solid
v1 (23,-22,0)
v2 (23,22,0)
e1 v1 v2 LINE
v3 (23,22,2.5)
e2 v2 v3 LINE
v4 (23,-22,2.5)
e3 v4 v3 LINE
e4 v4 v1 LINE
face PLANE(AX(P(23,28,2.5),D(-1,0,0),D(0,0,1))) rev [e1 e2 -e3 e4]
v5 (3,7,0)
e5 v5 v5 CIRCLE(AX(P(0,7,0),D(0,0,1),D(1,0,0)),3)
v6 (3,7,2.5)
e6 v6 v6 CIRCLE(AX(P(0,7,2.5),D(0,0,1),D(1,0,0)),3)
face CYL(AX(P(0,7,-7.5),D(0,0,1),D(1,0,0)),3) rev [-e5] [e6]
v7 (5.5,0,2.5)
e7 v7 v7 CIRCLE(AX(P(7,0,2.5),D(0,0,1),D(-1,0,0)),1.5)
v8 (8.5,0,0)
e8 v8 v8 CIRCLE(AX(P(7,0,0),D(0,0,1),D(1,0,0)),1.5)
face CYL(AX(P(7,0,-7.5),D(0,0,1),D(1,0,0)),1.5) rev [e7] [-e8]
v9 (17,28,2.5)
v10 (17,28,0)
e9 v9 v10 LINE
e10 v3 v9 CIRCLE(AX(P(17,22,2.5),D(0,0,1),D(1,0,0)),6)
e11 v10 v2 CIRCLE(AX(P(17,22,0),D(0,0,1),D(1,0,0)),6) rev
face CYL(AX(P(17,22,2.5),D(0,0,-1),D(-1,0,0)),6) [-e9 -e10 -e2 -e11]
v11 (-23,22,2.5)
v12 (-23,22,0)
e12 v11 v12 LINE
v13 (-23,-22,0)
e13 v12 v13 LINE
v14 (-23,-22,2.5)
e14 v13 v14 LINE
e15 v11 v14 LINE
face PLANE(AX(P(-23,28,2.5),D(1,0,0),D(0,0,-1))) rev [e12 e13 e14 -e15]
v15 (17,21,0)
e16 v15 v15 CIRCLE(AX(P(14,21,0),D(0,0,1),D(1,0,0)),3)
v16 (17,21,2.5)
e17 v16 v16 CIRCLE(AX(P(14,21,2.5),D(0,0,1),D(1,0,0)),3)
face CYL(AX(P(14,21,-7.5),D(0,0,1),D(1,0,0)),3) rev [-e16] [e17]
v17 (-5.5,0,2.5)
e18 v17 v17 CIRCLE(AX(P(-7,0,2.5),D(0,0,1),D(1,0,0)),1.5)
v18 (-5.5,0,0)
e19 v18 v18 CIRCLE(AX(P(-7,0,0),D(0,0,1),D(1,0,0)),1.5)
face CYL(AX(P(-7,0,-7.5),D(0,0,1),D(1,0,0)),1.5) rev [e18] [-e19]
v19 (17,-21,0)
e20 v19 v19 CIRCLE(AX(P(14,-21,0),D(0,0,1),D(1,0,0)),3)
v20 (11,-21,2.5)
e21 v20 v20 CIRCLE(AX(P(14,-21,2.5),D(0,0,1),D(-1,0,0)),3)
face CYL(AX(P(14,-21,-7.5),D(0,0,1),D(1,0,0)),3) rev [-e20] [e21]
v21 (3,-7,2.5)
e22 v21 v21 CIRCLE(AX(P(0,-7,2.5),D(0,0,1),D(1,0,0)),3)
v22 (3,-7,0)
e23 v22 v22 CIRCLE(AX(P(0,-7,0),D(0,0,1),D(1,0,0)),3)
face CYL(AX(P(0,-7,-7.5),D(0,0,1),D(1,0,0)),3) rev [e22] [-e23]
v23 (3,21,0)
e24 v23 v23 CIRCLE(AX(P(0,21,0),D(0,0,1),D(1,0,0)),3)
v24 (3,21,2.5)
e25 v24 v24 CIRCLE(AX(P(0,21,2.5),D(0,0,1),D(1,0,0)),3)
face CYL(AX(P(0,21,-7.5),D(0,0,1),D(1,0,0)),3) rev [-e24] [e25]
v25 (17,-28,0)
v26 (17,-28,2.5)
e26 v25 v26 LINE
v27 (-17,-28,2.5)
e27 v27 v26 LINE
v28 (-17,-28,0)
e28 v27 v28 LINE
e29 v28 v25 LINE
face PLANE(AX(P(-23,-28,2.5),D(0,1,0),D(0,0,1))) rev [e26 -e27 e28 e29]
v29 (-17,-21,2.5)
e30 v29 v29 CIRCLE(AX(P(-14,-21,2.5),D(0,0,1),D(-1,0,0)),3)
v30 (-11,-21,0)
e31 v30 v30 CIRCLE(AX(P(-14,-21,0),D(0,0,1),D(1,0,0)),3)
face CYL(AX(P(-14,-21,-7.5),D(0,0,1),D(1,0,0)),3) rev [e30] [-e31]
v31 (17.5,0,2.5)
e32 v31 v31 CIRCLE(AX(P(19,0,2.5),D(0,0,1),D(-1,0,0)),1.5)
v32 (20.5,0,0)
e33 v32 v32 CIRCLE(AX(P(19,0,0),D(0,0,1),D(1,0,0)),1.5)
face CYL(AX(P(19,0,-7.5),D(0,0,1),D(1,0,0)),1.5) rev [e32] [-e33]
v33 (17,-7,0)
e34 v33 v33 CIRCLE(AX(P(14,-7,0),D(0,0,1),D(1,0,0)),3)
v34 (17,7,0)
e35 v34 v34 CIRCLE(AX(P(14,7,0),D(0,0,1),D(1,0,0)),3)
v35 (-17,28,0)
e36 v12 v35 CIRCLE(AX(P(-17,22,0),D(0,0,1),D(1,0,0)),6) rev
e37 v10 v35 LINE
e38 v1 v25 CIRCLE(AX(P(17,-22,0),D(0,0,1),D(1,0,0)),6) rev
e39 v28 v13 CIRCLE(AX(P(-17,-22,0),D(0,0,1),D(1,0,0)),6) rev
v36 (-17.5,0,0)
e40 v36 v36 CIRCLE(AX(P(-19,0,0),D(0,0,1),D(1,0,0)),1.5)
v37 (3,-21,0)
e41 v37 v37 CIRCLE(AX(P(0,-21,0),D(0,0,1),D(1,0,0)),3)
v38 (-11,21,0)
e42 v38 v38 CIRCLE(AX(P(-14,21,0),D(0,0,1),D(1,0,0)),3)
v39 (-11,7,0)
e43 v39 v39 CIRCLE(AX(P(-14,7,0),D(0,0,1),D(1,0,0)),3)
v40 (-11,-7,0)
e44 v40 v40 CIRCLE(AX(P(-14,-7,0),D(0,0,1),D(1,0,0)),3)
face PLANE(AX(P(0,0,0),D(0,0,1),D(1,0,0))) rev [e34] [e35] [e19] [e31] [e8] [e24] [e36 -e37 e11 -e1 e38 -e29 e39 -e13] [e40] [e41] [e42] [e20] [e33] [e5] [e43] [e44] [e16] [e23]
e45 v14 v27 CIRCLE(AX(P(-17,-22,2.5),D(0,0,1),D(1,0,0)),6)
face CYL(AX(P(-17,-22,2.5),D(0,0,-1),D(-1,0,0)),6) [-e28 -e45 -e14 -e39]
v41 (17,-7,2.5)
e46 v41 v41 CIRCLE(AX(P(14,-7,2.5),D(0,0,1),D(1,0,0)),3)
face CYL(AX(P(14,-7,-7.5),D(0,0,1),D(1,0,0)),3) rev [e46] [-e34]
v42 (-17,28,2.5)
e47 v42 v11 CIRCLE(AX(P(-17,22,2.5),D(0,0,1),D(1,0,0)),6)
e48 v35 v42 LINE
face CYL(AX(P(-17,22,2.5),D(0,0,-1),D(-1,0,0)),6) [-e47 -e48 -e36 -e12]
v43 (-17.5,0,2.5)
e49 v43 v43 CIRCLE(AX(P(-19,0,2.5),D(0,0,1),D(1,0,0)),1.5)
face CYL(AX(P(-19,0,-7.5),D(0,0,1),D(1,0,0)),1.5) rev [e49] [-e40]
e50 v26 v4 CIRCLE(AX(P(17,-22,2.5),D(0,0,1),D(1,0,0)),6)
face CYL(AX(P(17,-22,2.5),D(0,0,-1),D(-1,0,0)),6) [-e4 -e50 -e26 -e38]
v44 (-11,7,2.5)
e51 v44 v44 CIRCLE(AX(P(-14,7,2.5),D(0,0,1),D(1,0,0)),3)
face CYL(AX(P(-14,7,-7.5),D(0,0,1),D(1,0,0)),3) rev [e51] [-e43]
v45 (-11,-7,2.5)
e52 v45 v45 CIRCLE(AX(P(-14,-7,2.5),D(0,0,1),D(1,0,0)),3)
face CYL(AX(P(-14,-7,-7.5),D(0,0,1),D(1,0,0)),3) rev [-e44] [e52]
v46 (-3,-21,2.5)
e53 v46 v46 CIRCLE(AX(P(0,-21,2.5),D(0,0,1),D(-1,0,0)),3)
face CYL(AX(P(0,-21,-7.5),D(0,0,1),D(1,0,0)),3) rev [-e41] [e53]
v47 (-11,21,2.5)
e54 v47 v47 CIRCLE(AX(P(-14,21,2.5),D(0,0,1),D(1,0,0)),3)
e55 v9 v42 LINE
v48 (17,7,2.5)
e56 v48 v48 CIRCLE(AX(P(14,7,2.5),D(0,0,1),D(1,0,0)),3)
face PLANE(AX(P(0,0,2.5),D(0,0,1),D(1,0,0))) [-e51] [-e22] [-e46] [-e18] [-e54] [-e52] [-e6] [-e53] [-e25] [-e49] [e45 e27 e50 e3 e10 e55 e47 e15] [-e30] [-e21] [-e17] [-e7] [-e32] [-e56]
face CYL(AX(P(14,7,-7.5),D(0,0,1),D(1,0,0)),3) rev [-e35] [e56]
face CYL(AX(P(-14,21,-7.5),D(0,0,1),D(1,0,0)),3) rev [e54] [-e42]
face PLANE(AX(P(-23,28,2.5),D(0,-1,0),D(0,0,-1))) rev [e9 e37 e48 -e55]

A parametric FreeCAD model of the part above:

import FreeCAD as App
import Part
import Sketcher
Q = App.Units.Quantity


def edges_at(feature, points):
    """Names of the edges that pass closest to the given points."""
    edges = feature.Shape.Edges
    near = lambda p: min(range(len(edges)), key=lambda i: edges[i].distToShape(Part.Vertex(*p))[0])
    return sorted({f"Edge{near(p) + 1}" for p in points})


def add_polygon(sketch, points):
    """Adds a closed chain of lines whose ends are joined by coincident constraints."""
    first, n = sketch.GeometryCount, len(points)
    for a, b in zip(points, points[1:] + points[:1]):
        sketch.addGeometry(Part.LineSegment(App.Vector(*a, 0), App.Vector(*b, 0)), False)
    for i in range(n):
        sketch.addConstraint(Sketcher.Constraint("Coincident", first + i, 2, first + (i + 1) % n, 1))

doc = App.newDocument("Part")
body = doc.addObject("PartDesign::Body", "Body")

# Sketch on XY plane
sketch1 = body.newObject("Sketcher::SketchObject", "Sketch")
sketch1.AttachmentSupport = (doc.getObject("XY_Plane"), [""])
sketch1.MapMode = "FlatFace"
add_polygon(sketch1, [(-23, 28), (-23, -28), (23, -28), (23, 28)])  # lines 0-3
sketch1.addConstraint([
    Sketcher.Constraint("Vertical", 0),
    Sketcher.Constraint("Horizontal", 1),
    Sketcher.Constraint("Vertical", 2),
    Sketcher.Constraint("Horizontal", 3),
    Sketcher.Constraint("Symmetric", 0, 2, 2, 2, -1, 1),
    Sketcher.Constraint("DistanceX", 1, 1, 1, 2, Q("46 mm")),
    Sketcher.Constraint("DistanceY", 0, 2, 0, 1, Q("56 mm")),
])
pad1 = body.newObject("PartDesign::Pad", "Pad")
pad1.Profile = sketch1
pad1.Length = 2.5
doc.recompute()

fillet = body.newObject("PartDesign::Fillet", "Fillet")
fillet.Base = (pad1, edges_at(pad1, [
    (23, -28, 1.25),
    (-23, -28, 1.25),
    (-23, 28, 1.25),
    (23, 28, 1.25),
]))
fillet.Radius = 6

# Sketch on XY plane
sketch2 = body.newObject("Sketcher::SketchObject", "Sketch001")
sketch2.AttachmentSupport = (doc.getObject("XY_Plane"), [""])
sketch2.MapMode = "FlatFace"
sketch2.AttachmentOffset = App.Placement(App.Vector(0, 0, 2.5), App.Rotation())
sketch2.addGeometry([
    Part.Circle(App.Vector(-19, 0, 0), App.Vector(0, 0, 1), 1.5),
    Part.Circle(App.Vector(-7, 0, 0), App.Vector(0, 0, 1), 1.5),
    Part.Circle(App.Vector(7, 0, 0), App.Vector(0, 0, 1), 1.5),
    Part.Circle(App.Vector(19, 0, 0), App.Vector(0, 0, 1), 1.5),
], False)
sketch2.addConstraint([
    Sketcher.Constraint("Equal", 0, 1),
    Sketcher.Constraint("Equal", 1, 2),
    Sketcher.Constraint("Equal", 2, 3),
    Sketcher.Constraint("Symmetric", 1, 3, 2, 3, -1, 1),
    Sketcher.Constraint("Symmetric", 0, 3, 3, 3, -1, 1),
    Sketcher.Constraint("PointOnObject", 0, 3, -1),
    Sketcher.Constraint("PointOnObject", 1, 3, -1),
    Sketcher.Constraint("Diameter", 0, Q("3 mm")),
    Sketcher.Constraint("DistanceX", 0, 3, -1, 1, Q("19 mm")),
    Sketcher.Constraint("DistanceX", 1, 3, -1, 1, Q("7 mm")),
])
pocket1 = body.newObject("PartDesign::Pocket", "Pocket")
pocket1.Profile = sketch2
pocket1.Length = 10

# Sketch on XY plane
sketch3 = body.newObject("Sketcher::SketchObject", "Sketch002")
sketch3.AttachmentSupport = (doc.getObject("XY_Plane"), [""])
sketch3.MapMode = "FlatFace"
sketch3.AttachmentOffset = App.Placement(App.Vector(0, 0, 2.5), App.Rotation())
sketch3.addGeometry([
    Part.Circle(App.Vector(-14, 7, 0), App.Vector(0, 0, 1), 3),  # 0
    Part.Circle(App.Vector(0, 7, 0), App.Vector(0, 0, 1), 3),  # 1
    Part.Circle(App.Vector(14, 7, 0), App.Vector(0, 0, 1), 3),  # 2
    Part.Circle(App.Vector(-14, -7, 0), App.Vector(0, 0, 1), 3),  # 3
    Part.Circle(App.Vector(0, -7, 0), App.Vector(0, 0, 1), 3),  # 4
    Part.Circle(App.Vector(14, -7, 0), App.Vector(0, 0, 1), 3),  # 5
    Part.Circle(App.Vector(-14, 21, 0), App.Vector(0, 0, 1), 3),  # 6
    Part.Circle(App.Vector(0, 21, 0), App.Vector(0, 0, 1), 3),  # 7
    Part.Circle(App.Vector(14, 21, 0), App.Vector(0, 0, 1), 3),  # 8
    Part.Circle(App.Vector(14, -21, 0), App.Vector(0, 0, 1), 3),  # 9
    Part.Circle(App.Vector(0, -21, 0), App.Vector(0, 0, 1), 3),  # 10
    Part.Circle(App.Vector(-14, -21, 0), App.Vector(0, 0, 1), 3),  # 11
], False)
sketch3.addConstraint([
    Sketcher.Constraint("Equal", 0, 1),
    Sketcher.Constraint("Equal", 1, 2),
    Sketcher.Constraint("Equal", 2, 3),
    Sketcher.Constraint("Equal", 3, 4),
    Sketcher.Constraint("Equal", 4, 5),
    Sketcher.Constraint("Equal", 5, 6),
    Sketcher.Constraint("Equal", 6, 7),
    Sketcher.Constraint("Equal", 7, 8),
    Sketcher.Constraint("Equal", 8, 9),
    Sketcher.Constraint("Equal", 9, 10),
    Sketcher.Constraint("Equal", 10, 11),
    Sketcher.Constraint("Symmetric", 2, 3, 3, 3, -1, 1),
    Sketcher.Constraint("Symmetric", 1, 3, 4, 3, -1, 1),
    Sketcher.Constraint("Symmetric", 0, 3, 5, 3, -1, 1),
    Sketcher.Constraint("Symmetric", 6, 3, 9, 3, -1, 1),
    Sketcher.Constraint("Symmetric", 7, 3, 10, 3, -1, 1),
    Sketcher.Constraint("Symmetric", 8, 3, 11, 3, -1, 1),
    Sketcher.Constraint("Symmetric", 0, 3, 2, 3, -2),
    Sketcher.Constraint("Symmetric", 6, 3, 8, 3, -2),
    Sketcher.Constraint("PointOnObject", 1, 3, -2),
    Sketcher.Constraint("PointOnObject", 7, 3, -2),
    Sketcher.Constraint("Horizontal", 0, 3, 1, 3),
    Sketcher.Constraint("Horizontal", 6, 3, 7, 3),
    Sketcher.Constraint("Vertical", 3, 3, 6, 3),
    Sketcher.Constraint("Diameter", 0, Q("6 mm")),
    Sketcher.Constraint("DistanceX", 0, 3, -1, 1, Q("14 mm")),
    Sketcher.Constraint("DistanceY", -1, 1, 0, 3, Q("7 mm")),
    Sketcher.Constraint("DistanceY", -1, 1, 6, 3, Q("21 mm")),
])
pocket2 = body.newObject("PartDesign::Pocket", "Pocket001")
pocket2.Profile = sketch3
pocket2.Length = 10

doc.recompute()
